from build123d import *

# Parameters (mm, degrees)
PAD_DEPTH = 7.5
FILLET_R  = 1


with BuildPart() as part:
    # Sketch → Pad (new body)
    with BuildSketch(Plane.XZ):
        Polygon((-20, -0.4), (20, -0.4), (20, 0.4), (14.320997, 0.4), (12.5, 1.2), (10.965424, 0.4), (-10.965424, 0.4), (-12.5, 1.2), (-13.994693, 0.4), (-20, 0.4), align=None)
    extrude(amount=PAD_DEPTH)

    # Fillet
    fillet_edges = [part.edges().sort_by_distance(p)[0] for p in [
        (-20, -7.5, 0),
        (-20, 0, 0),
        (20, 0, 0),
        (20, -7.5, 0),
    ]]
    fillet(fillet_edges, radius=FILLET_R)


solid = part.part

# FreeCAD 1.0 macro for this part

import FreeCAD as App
import Part
import Sketcher

V = App.Vector
Q = App.Units.Quantity


def edges_at(feature, points):
    """Names of the edges that pass closest to the given points."""
    edges = feature.Shape.Edges
    near = lambda p: min(range(len(edges)), key=lambda i: edges[i].distToShape(Part.Vertex(*p))[0])
    return sorted({f"Edge{near(p) + 1}" for p in points})

doc = App.newDocument("Part")
body = doc.addObject("PartDesign::Body", "Body")

# Sketch on XZ plane
sketch1 = body.newObject("Sketcher::SketchObject", "Sketch")
sketch1.AttachmentSupport = (doc.getObject("XZ_Plane"), [""])
sketch1.MapMode = "FlatFace"
sketch1.addGeometry(Part.LineSegment(V(-20, -0.4, 0), V(20, -0.4, 0)), False)
sketch1.addGeometry(Part.LineSegment(V(20, -0.4, 0), V(20, 0.4, 0)), False)
sketch1.addGeometry(Part.LineSegment(V(20, 0.4, 0), V(14.3, 0.4, 0)), False)
sketch1.addGeometry(Part.LineSegment(V(14.3, 0.4, 0), V(12.5, 1.2, 0)), False)
sketch1.addGeometry(Part.LineSegment(V(12.5, 1.2, 0), V(11, 0.4, 0)), False)
sketch1.addGeometry(Part.LineSegment(V(11, 0.4, 0), V(-11, 0.4, 0)), False)
sketch1.addGeometry(Part.LineSegment(V(-11, 0.4, 0), V(-12.5, 1.2, 0)), False)
sketch1.addGeometry(Part.LineSegment(V(-12.5, 1.2, 0), V(-14, 0.4, 0)), False)
sketch1.addGeometry(Part.LineSegment(V(-14, 0.4, 0), V(-20, 0.4, 0)), False)
sketch1.addGeometry(Part.LineSegment(V(-20, 0.4, 0), V(-20, -0.4, 0)), False)
sketch1.addConstraint(Sketcher.Constraint("Coincident", 0, 2, 1, 1))
sketch1.addConstraint(Sketcher.Constraint("Coincident", 1, 2, 2, 1))
sketch1.addConstraint(Sketcher.Constraint("Coincident", 2, 2, 3, 1))
sketch1.addConstraint(Sketcher.Constraint("Coincident", 3, 2, 4, 1))
sketch1.addConstraint(Sketcher.Constraint("Coincident", 4, 2, 5, 1))
sketch1.addConstraint(Sketcher.Constraint("Coincident", 5, 2, 6, 1))
sketch1.addConstraint(Sketcher.Constraint("Coincident", 6, 2, 7, 1))
sketch1.addConstraint(Sketcher.Constraint("Coincident", 7, 2, 8, 1))
sketch1.addConstraint(Sketcher.Constraint("Coincident", 8, 2, 9, 1))
sketch1.addConstraint(Sketcher.Constraint("Coincident", 9, 2, 0, 1))
sketch1.addConstraint(Sketcher.Constraint("Horizontal", 0))
sketch1.addConstraint(Sketcher.Constraint("Vertical", 1))
sketch1.addConstraint(Sketcher.Constraint("Horizontal", 2))
sketch1.addConstraint(Sketcher.Constraint("Horizontal", 5))
sketch1.addConstraint(Sketcher.Constraint("Horizontal", 8))
sketch1.addConstraint(Sketcher.Constraint("Vertical", 9))
sketch1.addConstraint(Sketcher.Constraint("Symmetric", 0, 2, 8, 2, -1, 1))
sketch1.addConstraint(Sketcher.Constraint("Symmetric", 3, 2, 6, 2, -2))
sketch1.addConstraint(Sketcher.Constraint("Horizontal", 2, 2, 4, 2))
sketch1.addConstraint(Sketcher.Constraint("Horizontal", 5, 2, 7, 2))
sketch1.addConstraint(Sketcher.Constraint("Equal", 4, 6))
sketch1.addConstraint(Sketcher.Constraint("DistanceX", 0, 1, 0, 2, Q("40 mm")))
sketch1.addConstraint(Sketcher.Constraint("DistanceY", 1, 1, 1, 2, Q("0.8 mm")))
sketch1.addConstraint(Sketcher.Constraint("DistanceX", 6, 2, 3, 2, Q("25 mm")))
sketch1.addConstraint(Sketcher.Constraint("DistanceY", -1, 1, 3, 2, Q("1.2 mm")))
sketch1.addConstraint(Sketcher.Constraint("DistanceX", 5, 2, 5, 1, Q("21.930848 mm")))
sketch1.addConstraint(Sketcher.Constraint("Distance", 7, Q("1.695319 mm")))
sketch1.addConstraint(Sketcher.Constraint("DistanceX", 2, 2, 2, 1, Q("5.679003 mm")))
pad1 = body.newObject("PartDesign::Pad", "Pad")
pad1.Profile = sketch1
pad1.Length = 7.5
doc.recompute()

fillet = body.newObject("PartDesign::Fillet", "Fillet")
fillet.Base = (pad1, edges_at(pad1, [
    (-20, -7.5, 0),
    (-20, 0, 0),
    (20, 0, 0),
    (20, -7.5, 0),
]))
fillet.Radius = 1

doc.recompute()
